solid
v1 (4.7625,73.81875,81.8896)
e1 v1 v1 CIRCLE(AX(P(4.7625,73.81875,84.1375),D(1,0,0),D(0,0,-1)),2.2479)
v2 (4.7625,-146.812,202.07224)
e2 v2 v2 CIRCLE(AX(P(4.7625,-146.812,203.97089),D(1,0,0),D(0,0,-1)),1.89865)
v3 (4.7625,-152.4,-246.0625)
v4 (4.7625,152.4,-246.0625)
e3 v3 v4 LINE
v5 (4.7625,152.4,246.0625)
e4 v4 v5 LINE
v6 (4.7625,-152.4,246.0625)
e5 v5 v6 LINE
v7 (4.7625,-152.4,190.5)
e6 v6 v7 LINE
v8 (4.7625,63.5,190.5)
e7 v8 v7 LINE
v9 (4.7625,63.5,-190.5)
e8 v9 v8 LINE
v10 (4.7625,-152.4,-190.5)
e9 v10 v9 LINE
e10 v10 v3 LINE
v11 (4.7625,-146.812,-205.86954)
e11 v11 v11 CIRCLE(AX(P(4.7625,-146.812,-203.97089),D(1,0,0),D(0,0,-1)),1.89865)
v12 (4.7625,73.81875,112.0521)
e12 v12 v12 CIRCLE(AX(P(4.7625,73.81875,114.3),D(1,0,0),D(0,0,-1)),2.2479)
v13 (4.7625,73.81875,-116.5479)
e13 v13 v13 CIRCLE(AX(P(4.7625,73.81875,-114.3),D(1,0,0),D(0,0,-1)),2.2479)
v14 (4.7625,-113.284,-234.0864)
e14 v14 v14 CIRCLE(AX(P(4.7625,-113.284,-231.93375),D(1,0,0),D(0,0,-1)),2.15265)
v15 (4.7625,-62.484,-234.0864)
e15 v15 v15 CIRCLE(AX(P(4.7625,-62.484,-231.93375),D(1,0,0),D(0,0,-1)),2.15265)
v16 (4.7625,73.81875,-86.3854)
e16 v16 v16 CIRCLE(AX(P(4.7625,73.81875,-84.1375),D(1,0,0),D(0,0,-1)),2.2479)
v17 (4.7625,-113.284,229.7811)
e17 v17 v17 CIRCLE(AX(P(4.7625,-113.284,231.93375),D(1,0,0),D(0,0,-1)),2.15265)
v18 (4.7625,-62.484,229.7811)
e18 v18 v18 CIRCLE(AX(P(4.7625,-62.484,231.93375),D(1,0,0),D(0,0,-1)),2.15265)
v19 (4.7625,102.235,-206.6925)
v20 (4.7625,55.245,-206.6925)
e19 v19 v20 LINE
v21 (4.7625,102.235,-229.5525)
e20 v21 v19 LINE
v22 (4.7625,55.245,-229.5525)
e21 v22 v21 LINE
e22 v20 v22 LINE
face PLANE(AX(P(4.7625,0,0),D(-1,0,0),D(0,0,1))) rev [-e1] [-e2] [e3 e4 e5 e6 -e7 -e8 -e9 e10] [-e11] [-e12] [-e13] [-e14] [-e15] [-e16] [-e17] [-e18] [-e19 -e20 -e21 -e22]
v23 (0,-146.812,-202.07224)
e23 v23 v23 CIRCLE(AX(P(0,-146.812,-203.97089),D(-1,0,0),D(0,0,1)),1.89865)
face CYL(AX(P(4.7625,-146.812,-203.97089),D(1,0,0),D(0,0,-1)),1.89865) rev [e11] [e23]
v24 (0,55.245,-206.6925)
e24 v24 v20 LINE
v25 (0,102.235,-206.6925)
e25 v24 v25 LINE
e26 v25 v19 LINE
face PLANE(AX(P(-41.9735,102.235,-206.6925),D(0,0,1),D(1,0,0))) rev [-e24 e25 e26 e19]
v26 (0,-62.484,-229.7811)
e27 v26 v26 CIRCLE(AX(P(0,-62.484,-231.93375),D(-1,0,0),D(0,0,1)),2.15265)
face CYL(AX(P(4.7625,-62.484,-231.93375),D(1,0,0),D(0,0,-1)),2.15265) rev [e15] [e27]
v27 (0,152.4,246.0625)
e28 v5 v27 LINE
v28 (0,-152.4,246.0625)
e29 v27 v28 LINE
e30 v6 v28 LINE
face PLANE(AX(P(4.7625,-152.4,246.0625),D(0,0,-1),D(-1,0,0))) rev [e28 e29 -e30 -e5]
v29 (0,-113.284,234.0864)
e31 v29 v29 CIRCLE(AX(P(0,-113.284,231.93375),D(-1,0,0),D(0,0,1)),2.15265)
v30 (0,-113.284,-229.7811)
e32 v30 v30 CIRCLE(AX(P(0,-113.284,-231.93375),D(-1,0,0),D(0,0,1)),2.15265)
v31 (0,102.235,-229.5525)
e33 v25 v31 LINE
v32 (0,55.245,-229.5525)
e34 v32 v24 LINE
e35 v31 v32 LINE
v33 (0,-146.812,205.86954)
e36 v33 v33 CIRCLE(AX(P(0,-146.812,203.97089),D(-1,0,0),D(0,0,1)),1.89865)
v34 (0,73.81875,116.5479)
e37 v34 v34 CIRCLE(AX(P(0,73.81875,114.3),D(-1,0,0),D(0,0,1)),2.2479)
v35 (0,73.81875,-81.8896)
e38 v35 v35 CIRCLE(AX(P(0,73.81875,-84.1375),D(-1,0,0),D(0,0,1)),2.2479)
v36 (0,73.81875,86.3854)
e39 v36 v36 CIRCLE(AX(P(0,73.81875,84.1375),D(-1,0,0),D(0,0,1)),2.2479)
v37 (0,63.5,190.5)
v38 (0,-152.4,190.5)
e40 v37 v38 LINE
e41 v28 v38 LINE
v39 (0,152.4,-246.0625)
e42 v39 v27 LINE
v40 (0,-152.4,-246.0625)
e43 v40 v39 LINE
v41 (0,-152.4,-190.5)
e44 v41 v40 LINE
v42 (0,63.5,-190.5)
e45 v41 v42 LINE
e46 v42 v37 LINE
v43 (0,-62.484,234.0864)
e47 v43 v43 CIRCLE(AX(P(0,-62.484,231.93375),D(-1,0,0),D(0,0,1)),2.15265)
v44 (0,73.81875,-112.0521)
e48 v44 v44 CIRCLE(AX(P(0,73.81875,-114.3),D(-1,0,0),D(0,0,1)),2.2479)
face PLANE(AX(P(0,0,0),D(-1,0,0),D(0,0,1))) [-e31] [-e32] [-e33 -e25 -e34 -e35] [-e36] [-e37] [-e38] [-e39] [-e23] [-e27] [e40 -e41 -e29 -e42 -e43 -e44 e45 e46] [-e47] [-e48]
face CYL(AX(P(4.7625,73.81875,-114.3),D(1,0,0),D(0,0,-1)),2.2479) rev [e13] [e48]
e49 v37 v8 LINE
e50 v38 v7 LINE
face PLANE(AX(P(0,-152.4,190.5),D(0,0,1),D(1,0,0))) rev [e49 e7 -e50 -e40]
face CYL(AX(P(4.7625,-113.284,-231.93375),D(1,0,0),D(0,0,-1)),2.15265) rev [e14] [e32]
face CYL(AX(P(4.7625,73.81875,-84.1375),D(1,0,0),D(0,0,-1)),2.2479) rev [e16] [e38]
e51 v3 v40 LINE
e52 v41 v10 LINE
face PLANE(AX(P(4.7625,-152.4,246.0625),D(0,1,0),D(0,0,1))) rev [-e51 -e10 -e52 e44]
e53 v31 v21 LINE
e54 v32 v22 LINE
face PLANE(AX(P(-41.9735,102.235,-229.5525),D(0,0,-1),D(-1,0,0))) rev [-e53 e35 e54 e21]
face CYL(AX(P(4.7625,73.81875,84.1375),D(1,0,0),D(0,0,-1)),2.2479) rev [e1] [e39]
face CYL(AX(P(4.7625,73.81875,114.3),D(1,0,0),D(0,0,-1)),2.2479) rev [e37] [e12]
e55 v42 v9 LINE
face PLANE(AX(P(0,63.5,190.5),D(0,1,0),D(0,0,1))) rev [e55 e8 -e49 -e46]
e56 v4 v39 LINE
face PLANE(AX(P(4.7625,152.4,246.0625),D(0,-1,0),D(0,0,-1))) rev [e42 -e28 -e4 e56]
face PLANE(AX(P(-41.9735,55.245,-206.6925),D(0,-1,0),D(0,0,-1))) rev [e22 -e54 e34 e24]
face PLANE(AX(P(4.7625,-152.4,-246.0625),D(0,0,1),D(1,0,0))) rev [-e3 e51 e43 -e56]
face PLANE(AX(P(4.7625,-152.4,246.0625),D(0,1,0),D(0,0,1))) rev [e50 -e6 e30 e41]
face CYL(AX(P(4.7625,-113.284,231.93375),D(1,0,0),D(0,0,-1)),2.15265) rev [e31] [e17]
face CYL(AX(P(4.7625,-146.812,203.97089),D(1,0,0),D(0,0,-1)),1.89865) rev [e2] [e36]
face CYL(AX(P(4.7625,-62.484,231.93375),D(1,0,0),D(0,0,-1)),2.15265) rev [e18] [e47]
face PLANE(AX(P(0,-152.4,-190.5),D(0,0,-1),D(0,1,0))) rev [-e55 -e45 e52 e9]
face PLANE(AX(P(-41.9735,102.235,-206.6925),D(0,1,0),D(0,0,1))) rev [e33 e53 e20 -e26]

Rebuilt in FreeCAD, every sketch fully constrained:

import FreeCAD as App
import Part
import Sketcher

V = App.Vector
Q = App.Units.Quantity

doc = App.newDocument("Part")
body = doc.addObject("PartDesign::Body", "Body")

# Sketch on YZ plane
sketch1 = body.newObject("Sketcher::SketchObject", "Sketch")
sketch1.AttachmentSupport = (doc.getObject("YZ_Plane"), [""])
sketch1.MapMode = "FlatFace"
sketch1.addGeometry([
    Part.LineSegment(V(152, 246, 0), V(-152, 246, 0)),
    Part.LineSegment(V(-152, 246, 0), V(-152, -246, 0)),
    Part.LineSegment(V(-152, -246, 0), V(152, -246, 0)),
    Part.LineSegment(V(152, -246, 0), V(152, 246, 0)),
], False)
sketch1.addConstraint([
    Sketcher.Constraint("Coincident", 0, 2, 1, 1),
    Sketcher.Constraint("Coincident", 1, 2, 2, 1),
    Sketcher.Constraint("Coincident", 2, 2, 3, 1),
    Sketcher.Constraint("Coincident", 3, 2, 0, 1),
    Sketcher.Constraint("Horizontal", 0),
    Sketcher.Constraint("Vertical", 1),
    Sketcher.Constraint("Horizontal", 2),
    Sketcher.Constraint("Vertical", 3),
    Sketcher.Constraint("Symmetric", 0, 2, 2, 2, -1, 1),
    Sketcher.Constraint("DistanceX", 0, 2, 0, 1, Q("12 in")),
    Sketcher.Constraint("DistanceY", 1, 2, 1, 1, Q("19.375 in")),
])
pad1 = body.newObject("PartDesign::Pad", "Pad")
pad1.Profile = sketch1
pad1.Length = Q("0.1875 in")

# Sketch on YZ plane
sketch2 = body.newObject("Sketcher::SketchObject", "Sketch001")
sketch2.AttachmentSupport = (doc.getObject("YZ_Plane"), [""])
sketch2.MapMode = "FlatFace"
sketch2.AttachmentOffset = App.Placement(V(0, 0, 0.1875 * 25.4), App.Rotation())
sketch2.addGeometry([
    Part.LineSegment(V(-60, 25, 0), V(-60, -25, 0)),  # 0
    Part.LineSegment(V(-60, -25, 0), V(-25, -60, 0)),  # 1
    Part.LineSegment(V(-25, -60, 0), V(25, -60, 0)),  # 2
    Part.LineSegment(V(25, -60, 0), V(60, -25, 0)),  # 3
    Part.LineSegment(V(60, -25, 0), V(60, 25, 0)),  # 4
    Part.LineSegment(V(60, 25, 0), V(25, 60, 0)),  # 5
    Part.LineSegment(V(25, 60, 0), V(-25, 60, 0)),  # 6
    Part.LineSegment(V(-25, 60, 0), V(-60, 25, 0)),  # 7
], False)
sketch2.addConstraint([
    Sketcher.Constraint("Coincident", 0, 2, 1, 1),
    Sketcher.Constraint("Coincident", 1, 2, 2, 1),
    Sketcher.Constraint("Coincident", 2, 2, 3, 1),
    Sketcher.Constraint("Coincident", 3, 2, 4, 1),
    Sketcher.Constraint("Coincident", 4, 2, 5, 1),
    Sketcher.Constraint("Coincident", 5, 2, 6, 1),
    Sketcher.Constraint("Coincident", 6, 2, 7, 1),
    Sketcher.Constraint("Coincident", 7, 2, 0, 1),
    Sketcher.Constraint("Vertical", 0),
    Sketcher.Constraint("Horizontal", 2),
    Sketcher.Constraint("Vertical", 4),
    Sketcher.Constraint("Horizontal", 6),
    Sketcher.Constraint("Symmetric", 0, 2, 4, 2, -1, 1),
    Sketcher.Constraint("Symmetric", 1, 2, 5, 2, -1, 1),
    Sketcher.Constraint("Perpendicular", 1, 3),
    Sketcher.Constraint("Perpendicular", 5, 7),
    Sketcher.Constraint("Horizontal", 0, 2, 3, 2),
    Sketcher.Constraint("Horizontal", 4, 2, 7, 2),
    Sketcher.Constraint("Vertical", 2, 2, 5, 2),
    Sketcher.Constraint("Equal", 6, 0),
    Sketcher.Constraint("DistanceX", 0, 2, -1, 1, 60.0),
    Sketcher.Constraint("DistanceX", 2, 1, 2, 2, 49.705627),
])
pocket1 = body.newObject("PartDesign::Pocket", "Pocket")
pocket1.Profile = sketch2
pocket1.Type = "UpToFirst"

# Sketch on XY plane
sketch3 = body.newObject("Sketcher::SketchObject", "Sketch002")
sketch3.AttachmentSupport = (doc.getObject("XY_Plane"), [""])
sketch3.MapMode = "FlatFace"
sketch3.AttachmentOffset = App.Placement(V(0, 0, 9.6875 * 25.4), App.Rotation())
sketch3.addGeometry([
    Part.LineSegment(V(0, 152.4, 0), V(0, -152.4, 0)),
    Part.LineSegment(V(0, -152.4, 0), V(4.8, -152.4, 0)),
    Part.LineSegment(V(4.8, -152.4, 0), V(4.8, 152.4, 0)),
    Part.LineSegment(V(4.8, 152.4, 0), V(0, 152.4, 0)),
], False)
sketch3.addConstraint([
    Sketcher.Constraint("Coincident", 0, 2, 1, 1),
    Sketcher.Constraint("Coincident", 1, 2, 2, 1),
    Sketcher.Constraint("Coincident", 2, 2, 3, 1),
    Sketcher.Constraint("Coincident", 3, 2, 0, 1),
    Sketcher.Constraint("Vertical", 0),
    Sketcher.Constraint("Horizontal", 1),
    Sketcher.Constraint("Vertical", 2),
    Sketcher.Constraint("Horizontal", 3),
    Sketcher.Constraint("Symmetric", 0, 2, 3, 2, -1, 1),
    Sketcher.Constraint("DistanceY", 0, 2, 0, 1, Q("12 in")),
    Sketcher.Constraint("DistanceX", 1, 1, 1, 2, Q("0.1875 in")),
])
pad2 = body.newObject("PartDesign::Pad", "Pad001")
pad2.Profile = sketch3
pad2.Length = 306.0625
pad2.Reversed = True

# Sketch on YZ plane
sketch4 = body.newObject("Sketcher::SketchObject", "Sketch003")
sketch4.AttachmentSupport = (doc.getObject("YZ_Plane"), [""])
sketch4.MapMode = "FlatFace"
sketch4.AttachmentOffset = App.Placement(V(0, 0, 0.1875 * 25.4), App.Rotation())
sketch4.addGeometry([
    Part.Circle(V(-113.3, 231.9, 0), V(0, 0, 1), 2.2),
    Part.Circle(V(-62.5, 231.9, 0), V(0, 0, 1), 2.2),
    Part.Circle(V(-62.5, -231.9, 0), V(0, 0, 1), 2.2),
    Part.Circle(V(-113.3, -231.9, 0), V(0, 0, 1), 2.2),
], False)
sketch4.addConstraint([
    Sketcher.Constraint("Equal", 0, 1),
    Sketcher.Constraint("Equal", 1, 2),
    Sketcher.Constraint("Equal", 2, 3),
    Sketcher.Constraint("Symmetric", 1, 3, 2, 3, -1),
    Sketcher.Constraint("Symmetric", 0, 3, 3, 3, -1),
    Sketcher.Constraint("Horizontal", 0, 3, 1, 3),
    Sketcher.Constraint("DistanceX", 0, 3, 1, 3, Q("2 in")),
    Sketcher.Constraint("Diameter", 0, Q("0.1695 in")),
    Sketcher.Constraint("DistanceX", 0, 3, -1, 1, Q("4.46 in")),
    Sketcher.Constraint("DistanceY", 2, 3, 1, 3, Q("18.2625 in")),
])
doc.recompute()
hole = body.newObject("PartDesign::Hole", "Hole")
hole.Profile = sketch4
hole.ThreadType = "None"
hole.Diameter = Q("0.1695 in")
hole.DepthType = "Dimension"
hole.Depth = Q("2.93 in")
hole.DrillPoint = "Angled"
hole.DrillPointAngle = 118

# Sketch on YZ plane
sketch5 = body.newObject("Sketcher::SketchObject", "Sketch004")
sketch5.AttachmentSupport = (doc.getObject("YZ_Plane"), [""])
sketch5.MapMode = "FlatFace"
sketch5.AttachmentOffset = App.Placement(V(0, 0, 0.1875 * 25.4), App.Rotation())
sketch5.addGeometry([
    Part.LineSegment(V(64, 190, 0), V(-152, 190, 0)),
    Part.LineSegment(V(-152, 190, 0), V(-152, -190, 0)),
    Part.LineSegment(V(-152, -190, 0), V(64, -190, 0)),
    Part.LineSegment(V(64, -190, 0), V(64, 190, 0)),
], False)
sketch5.addConstraint([
    Sketcher.Constraint("Coincident", 0, 2, 1, 1),
    Sketcher.Constraint("Coincident", 1, 2, 2, 1),
    Sketcher.Constraint("Coincident", 2, 2, 3, 1),
    Sketcher.Constraint("Coincident", 3, 2, 0, 1),
    Sketcher.Constraint("Horizontal", 0),
    Sketcher.Constraint("Vertical", 1),
    Sketcher.Constraint("Horizontal", 2),
    Sketcher.Constraint("Vertical", 3),
    Sketcher.Constraint("DistanceY", 1, 2, 1, 1, Q("15 in")),
    Sketcher.Constraint("DistanceX", 0, 2, 0, 1, Q("8.5 in")),
    Sketcher.Constraint("DistanceX", 0, 2, -1, 1, Q("6 in")),
    Sketcher.Constraint("DistanceY", -1, 1, 0, 2, Q("7.5 in")),
])
pocket2 = body.newObject("PartDesign::Pocket", "Pocket001")
pocket2.Profile = sketch5
pocket2.Type = "ThroughAll"

# Sketch on YZ plane
sketch6 = body.newObject("Sketcher::SketchObject", "Sketch005")
sketch6.AttachmentSupport = (doc.getObject("YZ_Plane"), [""])
sketch6.MapMode = "FlatFace"
sketch6.AttachmentOffset = App.Placement(V(0, 0, 0.1875 * 25.4), App.Rotation())
sketch6.addGeometry([
    Part.Circle(V(73.8, 114.3, 0), V(0, 0, 1), 2.2),
    Part.Circle(V(73.8, 84.1, 0), V(0, 0, 1), 2.2),
    Part.Circle(V(73.8, -84.1, 0), V(0, 0, 1), 2.2),
    Part.Circle(V(73.8, -114.3, 0), V(0, 0, 1), 2.2),
], False)
sketch6.addConstraint([
    Sketcher.Constraint("Equal", 0, 1),
    Sketcher.Constraint("Equal", 1, 2),
    Sketcher.Constraint("Equal", 2, 3),
    Sketcher.Constraint("Symmetric", 1, 3, 2, 3, -1),
    Sketcher.Constraint("Symmetric", 0, 3, 3, 3, -1),
    Sketcher.Constraint("Vertical", 0, 3, 1, 3),
    Sketcher.Constraint("Diameter", 0, Q("0.177 in")),
    Sketcher.Constraint("DistanceY", 3, 3, 0, 3, Q("9 in")),
    Sketcher.Constraint("DistanceX", -1, 1, 0, 3, Q("2.90625 in")),
    Sketcher.Constraint("DistanceY", -1, 1, 1, 3, Q("3.3125 in")),
])
doc.recompute()
hole2 = body.newObject("PartDesign::Hole", "Hole001")
hole2.Profile = sketch6
hole2.ThreadType = "None"
hole2.Diameter = Q("0.177 in")
hole2.DepthType = "Dimension"
hole2.Depth = Q("2.93 in")
hole2.DrillPoint = "Angled"
hole2.DrillPointAngle = 118

# Sketch on YZ plane
sketch7 = body.newObject("Sketcher::SketchObject", "Sketch006")
sketch7.AttachmentSupport = (doc.getObject("YZ_Plane"), [""])
sketch7.MapMode = "FlatFace"
sketch7.AttachmentOffset = App.Placement(V(0, 0, 0.1875 * 25.4), App.Rotation())
sketch7.addGeometry([
    Part.Circle(V(-146.8, 204, 0), V(0, 0, 1), 1.9),
    Part.Circle(V(-146.8, -204, 0), V(0, 0, 1), 1.9),
], False)
sketch7.addConstraint([
    Sketcher.Constraint("Equal", 0, 1),
    Sketcher.Constraint("Symmetric", 0, 3, 1, 3, -1),
    Sketcher.Constraint("Diameter", 0, Q("0.1495 in")),
    Sketcher.Constraint("DistanceX", 0, 3, -1, 1, Q("5.78 in")),
    Sketcher.Constraint("DistanceY", 1, 3, 0, 3, Q("16.0607 in")),
])
doc.recompute()
hole3 = body.newObject("PartDesign::Hole", "Hole002")
hole3.Profile = sketch7
hole3.ThreadType = "None"
hole3.Diameter = Q("0.1495 in")
hole3.DepthType = "Dimension"
hole3.Depth = Q("2.93 in")
hole3.DrillPoint = "Angled"
hole3.DrillPointAngle = 118

# Sketch on YZ plane
sketch8 = body.newObject("Sketcher::SketchObject", "Sketch007")
sketch8.AttachmentSupport = (doc.getObject("YZ_Plane"), [""])
sketch8.MapMode = "FlatFace"
sketch8.AttachmentOffset = App.Placement(V(0, 0, 0.1875 * 25.4), App.Rotation())
sketch8.addGeometry([
    Part.LineSegment(V(102, -207, 0), V(55, -207, 0)),
    Part.LineSegment(V(55, -207, 0), V(55, -230, 0)),
    Part.LineSegment(V(55, -230, 0), V(102, -230, 0)),
    Part.LineSegment(V(102, -230, 0), V(102, -207, 0)),
], False)
sketch8.addConstraint([
    Sketcher.Constraint("Coincident", 0, 2, 1, 1),
    Sketcher.Constraint("Coincident", 1, 2, 2, 1),
    Sketcher.Constraint("Coincident", 2, 2, 3, 1),
    Sketcher.Constraint("Coincident", 3, 2, 0, 1),
    Sketcher.Constraint("Horizontal", 0),
    Sketcher.Constraint("Vertical", 1),
    Sketcher.Constraint("Horizontal", 2),
    Sketcher.Constraint("Vertical", 3),
    Sketcher.Constraint("DistanceY", 1, 2, 1, 1, Q("0.9 in")),
    Sketcher.Constraint("DistanceX", 0, 2, 0, 1, Q("1.85 in")),
    Sketcher.Constraint("DistanceX", -1, 1, 0, 2, Q("2.175 in")),
    Sketcher.Constraint("DistanceY", 0, 2, -1, 1, Q("8.1375 in")),
])
pocket3 = body.newObject("PartDesign::Pocket", "Pocket002")
pocket3.Profile = sketch8
pocket3.Length = Q("1.84 in")

doc.recompute()
